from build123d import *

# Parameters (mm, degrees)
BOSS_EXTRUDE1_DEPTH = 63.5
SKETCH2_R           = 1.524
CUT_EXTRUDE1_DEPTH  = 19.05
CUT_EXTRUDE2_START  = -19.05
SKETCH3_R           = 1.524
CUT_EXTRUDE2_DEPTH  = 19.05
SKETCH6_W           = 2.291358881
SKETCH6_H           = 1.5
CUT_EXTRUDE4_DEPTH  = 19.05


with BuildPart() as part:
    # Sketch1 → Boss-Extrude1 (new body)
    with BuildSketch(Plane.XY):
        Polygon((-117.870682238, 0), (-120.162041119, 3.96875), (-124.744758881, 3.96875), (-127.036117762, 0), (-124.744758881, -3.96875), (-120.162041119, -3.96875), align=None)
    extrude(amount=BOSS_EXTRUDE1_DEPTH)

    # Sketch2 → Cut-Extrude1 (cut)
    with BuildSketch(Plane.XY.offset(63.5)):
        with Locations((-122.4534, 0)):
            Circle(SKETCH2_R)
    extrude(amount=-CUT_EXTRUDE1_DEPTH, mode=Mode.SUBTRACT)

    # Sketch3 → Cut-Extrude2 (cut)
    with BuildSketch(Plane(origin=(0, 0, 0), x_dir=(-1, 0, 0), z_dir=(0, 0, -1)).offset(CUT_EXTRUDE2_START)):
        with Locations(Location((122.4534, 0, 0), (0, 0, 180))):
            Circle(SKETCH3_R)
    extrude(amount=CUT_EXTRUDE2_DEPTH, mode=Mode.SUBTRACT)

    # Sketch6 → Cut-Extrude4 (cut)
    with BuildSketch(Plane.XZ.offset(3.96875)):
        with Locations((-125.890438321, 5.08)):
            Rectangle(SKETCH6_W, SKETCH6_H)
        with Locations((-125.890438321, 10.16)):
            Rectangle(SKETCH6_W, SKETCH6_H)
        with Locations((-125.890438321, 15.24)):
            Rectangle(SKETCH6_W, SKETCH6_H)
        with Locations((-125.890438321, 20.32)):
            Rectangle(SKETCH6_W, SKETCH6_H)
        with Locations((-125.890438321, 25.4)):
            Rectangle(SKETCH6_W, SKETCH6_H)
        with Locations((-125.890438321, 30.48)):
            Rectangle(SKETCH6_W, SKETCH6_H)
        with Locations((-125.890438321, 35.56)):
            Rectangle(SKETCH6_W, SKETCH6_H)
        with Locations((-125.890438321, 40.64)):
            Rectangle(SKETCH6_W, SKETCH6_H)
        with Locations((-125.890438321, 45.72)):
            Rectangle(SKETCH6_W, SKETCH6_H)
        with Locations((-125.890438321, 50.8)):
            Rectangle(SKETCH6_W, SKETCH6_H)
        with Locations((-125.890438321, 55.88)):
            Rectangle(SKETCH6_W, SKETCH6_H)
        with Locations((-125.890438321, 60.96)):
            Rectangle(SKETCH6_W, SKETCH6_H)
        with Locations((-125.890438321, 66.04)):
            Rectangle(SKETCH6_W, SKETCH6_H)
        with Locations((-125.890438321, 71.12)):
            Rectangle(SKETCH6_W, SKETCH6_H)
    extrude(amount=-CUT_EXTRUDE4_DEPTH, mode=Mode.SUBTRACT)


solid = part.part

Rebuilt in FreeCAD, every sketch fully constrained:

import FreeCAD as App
import Part
import Sketcher
Q = App.Units.Quantity


def add_polygon(sketch, points):
    """Adds a closed chain of lines whose ends are joined by coincident constraints."""
    first, n = sketch.GeometryCount, len(points)
    for a, b in zip(points, points[1:] + points[:1]):
        sketch.addGeometry(Part.LineSegment(App.Vector(*a, 0), App.Vector(*b, 0)), False)
    for i in range(n):
        sketch.addConstraint(Sketcher.Constraint("Coincident", first + i, 2, first + (i + 1) % n, 1))

doc = App.newDocument("Part")
body = doc.addObject("PartDesign::Body", "Body")

sketch1 = body.newObject("Sketcher::SketchObject", "Sketch")
sketch1.AttachmentSupport = (doc.getObject("XY_Plane"), [""])
sketch1.MapMode = "FlatFace"
add_polygon(sketch1, [(-117.9, 0), (-120.2, 4), (-124.7, 4), (-127, 0), (-124.7, -4), (-120.2, -4)])
sketch1.addConstraint(Sketcher.Constraint("Horizontal", 1))
sketch1.addConstraint(Sketcher.Constraint("Horizontal", 4))
sketch1.addConstraint(Sketcher.Constraint("Symmetric", 1, 2, 3, 2, -1))
sketch1.addConstraint(Sketcher.Constraint("PointOnObject", 2, 2, -1))
sketch1.addConstraint(Sketcher.Constraint("PointOnObject", 5, 2, -1))
sketch1.addConstraint(Sketcher.Constraint("Parallel", 0, 3))
sketch1.addConstraint(Sketcher.Constraint("Parallel", 2, 5))
sketch1.addConstraint(Sketcher.Constraint("Angle", 0, Q("120 deg")))
sketch1.addConstraint(Sketcher.Constraint("DistanceY", -1, 1, 0, 2, Q("0.15625 in")))
sketch1.addConstraint(Sketcher.Constraint("DistanceX", 1, 2, 1, 1, Q("4.582718 mm")))
sketch1.addConstraint(Sketcher.Constraint("DistanceX", 0, 2, -1, 1, Q("120.162041 mm")))
pad1 = body.newObject("PartDesign::Pad", "Pad")
pad1.Profile = sketch1
pad1.Length = Q("2.5 in")

sketch2 = body.newObject("Sketcher::SketchObject", "Sketch001")
sketch2.AttachmentSupport = (doc.getObject("XY_Plane"), [""])
sketch2.MapMode = "FlatFace"
sketch2.AttachmentOffset = App.Placement(App.Vector(0, 0, 2.5 * 25.4), App.Rotation())
sketch2.addGeometry(Part.Circle(App.Vector(-122.5, 0, 0), App.Vector(0, 0, 1), 1.5), False)
sketch2.addConstraint(Sketcher.Constraint("PointOnObject", 0, 3, -1))
sketch2.addConstraint(Sketcher.Constraint("Diameter", 0, Q("0.12 in")))
sketch2.addConstraint(Sketcher.Constraint("DistanceX", 0, 3, -1, 1, Q("4.821 in")))
pocket1 = body.newObject("PartDesign::Pocket", "Pocket")
pocket1.Profile = sketch2
pocket1.Length = Q("0.75 in")

sketch3 = body.newObject("Sketcher::SketchObject", "Sketch002")
sketch3.AttachmentSupport = (doc.getObject("XY_Plane"), [""])
sketch3.MapMode = "FlatFace"
sketch3.AttachmentOffset = App.Placement(App.Vector(0, 0, 0.75 * 25.4), App.Rotation())
sketch3.addGeometry(Part.Circle(App.Vector(-122.5, 0, 0), App.Vector(0, 0, 1), 1.5), False)
sketch3.addConstraint(Sketcher.Constraint("PointOnObject", 0, 3, -1))
sketch3.addConstraint(Sketcher.Constraint("Diameter", 0, Q("0.12 in")))
sketch3.addConstraint(Sketcher.Constraint("DistanceX", 0, 3, -1, 1, Q("4.821 in")))
pocket2 = body.newObject("PartDesign::Pocket", "Pocket001")
pocket2.Profile = sketch3
pocket2.Length = Q("0.75 in")

sketch4 = body.newObject("Sketcher::SketchObject", "Sketch003")
sketch4.AttachmentSupport = (doc.getObject("XZ_Plane"), [""])
sketch4.MapMode = "FlatFace"
sketch4.AttachmentOffset = App.Placement(App.Vector(0, 0, 0.15625 * 25.4), App.Rotation())
add_polygon(sketch4, [(-127, 5.8), (-127, 4.3), (-124.7, 4.3), (-124.7, 5.8)])
add_polygon(sketch4, [(-127, 10.9), (-127, 9.4), (-124.7, 9.4), (-124.7, 10.9)])
add_polygon(sketch4, [(-127, 16), (-127, 14.5), (-124.7, 14.5), (-124.7, 16)])
add_polygon(sketch4, [(-127, 21.1), (-127, 19.6), (-124.7, 19.6), (-124.7, 21.1)])
add_polygon(sketch4, [(-127, 26.1), (-127, 24.6), (-124.7, 24.6), (-124.7, 26.1)])
add_polygon(sketch4, [(-127, 31.2), (-127, 29.7), (-124.7, 29.7), (-124.7, 31.2)])
add_polygon(sketch4, [(-127, 36.3), (-127, 34.8), (-124.7, 34.8), (-124.7, 36.3)])
add_polygon(sketch4, [(-127, 41.4), (-127, 39.9), (-124.7, 39.9), (-124.7, 41.4)])
add_polygon(sketch4, [(-127, 46.5), (-127, 45), (-124.7, 45), (-124.7, 46.5)])
add_polygon(sketch4, [(-127, 51.5), (-127, 50), (-124.7, 50), (-124.7, 51.5)])
add_polygon(sketch4, [(-127, 56.6), (-127, 55.1), (-124.7, 55.1), (-124.7, 56.6)])
add_polygon(sketch4, [(-127, 61.7), (-127, 60.2), (-124.7, 60.2), (-124.7, 61.7)])
add_polygon(sketch4, [(-127, 66.8), (-127, 65.3), (-124.7, 65.3), (-124.7, 66.8)])
add_polygon(sketch4, [(-127, 71.9), (-127, 70.4), (-124.7, 70.4), (-124.7, 71.9)])
sketch4.addConstraint(Sketcher.Constraint("Vertical", 0))
sketch4.addConstraint(Sketcher.Constraint("Horizontal", 1))
sketch4.addConstraint(Sketcher.Constraint("Vertical", 2))
sketch4.addConstraint(Sketcher.Constraint("Horizontal", 3))
sketch4.addConstraint(Sketcher.Constraint("Vertical", 4))
sketch4.addConstraint(Sketcher.Constraint("Horizontal", 5))
sketch4.addConstraint(Sketcher.Constraint("Vertical", 6))
sketch4.addConstraint(Sketcher.Constraint("Horizontal", 7))
sketch4.addConstraint(Sketcher.Constraint("Vertical", 8))
sketch4.addConstraint(Sketcher.Constraint("Horizontal", 9))
sketch4.addConstraint(Sketcher.Constraint("Vertical", 10))
sketch4.addConstraint(Sketcher.Constraint("Horizontal", 11))
sketch4.addConstraint(Sketcher.Constraint("Vertical", 12))
sketch4.addConstraint(Sketcher.Constraint("Horizontal", 13))
sketch4.addConstraint(Sketcher.Constraint("Vertical", 14))
sketch4.addConstraint(Sketcher.Constraint("Horizontal", 15))
sketch4.addConstraint(Sketcher.Constraint("Vertical", 16))
sketch4.addConstraint(Sketcher.Constraint("Horizontal", 17))
sketch4.addConstraint(Sketcher.Constraint("Vertical", 18))
sketch4.addConstraint(Sketcher.Constraint("Horizontal", 19))
sketch4.addConstraint(Sketcher.Constraint("Vertical", 20))
sketch4.addConstraint(Sketcher.Constraint("Horizontal", 21))
sketch4.addConstraint(Sketcher.Constraint("Vertical", 22))
sketch4.addConstraint(Sketcher.Constraint("Horizontal", 23))
sketch4.addConstraint(Sketcher.Constraint("Vertical", 24))
sketch4.addConstraint(Sketcher.Constraint("Horizontal", 25))
sketch4.addConstraint(Sketcher.Constraint("Vertical", 26))
sketch4.addConstraint(Sketcher.Constraint("Horizontal", 27))
sketch4.addConstraint(Sketcher.Constraint("Vertical", 28))
sketch4.addConstraint(Sketcher.Constraint("Horizontal", 29))
sketch4.addConstraint(Sketcher.Constraint("Vertical", 30))
sketch4.addConstraint(Sketcher.Constraint("Horizontal", 31))
sketch4.addConstraint(Sketcher.Constraint("Vertical", 32))
sketch4.addConstraint(Sketcher.Constraint("Horizontal", 33))
sketch4.addConstraint(Sketcher.Constraint("Vertical", 34))
sketch4.addConstraint(Sketcher.Constraint("Horizontal", 35))
sketch4.addConstraint(Sketcher.Constraint("Vertical", 36))
sketch4.addConstraint(Sketcher.Constraint("Horizontal", 37))
sketch4.addConstraint(Sketcher.Constraint("Vertical", 38))
sketch4.addConstraint(Sketcher.Constraint("Horizontal", 39))
sketch4.addConstraint(Sketcher.Constraint("Vertical", 40))
sketch4.addConstraint(Sketcher.Constraint("Horizontal", 41))
sketch4.addConstraint(Sketcher.Constraint("Vertical", 42))
sketch4.addConstraint(Sketcher.Constraint("Horizontal", 43))
sketch4.addConstraint(Sketcher.Constraint("Vertical", 44))
sketch4.addConstraint(Sketcher.Constraint("Horizontal", 45))
sketch4.addConstraint(Sketcher.Constraint("Vertical", 46))
sketch4.addConstraint(Sketcher.Constraint("Horizontal", 47))
sketch4.addConstraint(Sketcher.Constraint("Vertical", 48))
sketch4.addConstraint(Sketcher.Constraint("Horizontal", 49))
sketch4.addConstraint(Sketcher.Constraint("Vertical", 50))
sketch4.addConstraint(Sketcher.Constraint("Horizontal", 51))
sketch4.addConstraint(Sketcher.Constraint("Vertical", 52))
sketch4.addConstraint(Sketcher.Constraint("Horizontal", 53))
sketch4.addConstraint(Sketcher.Constraint("Vertical", 54))
sketch4.addConstraint(Sketcher.Constraint("Horizontal", 55))
sketch4.addConstraint(Sketcher.Constraint("Vertical", 3, 2, 4, 2))
sketch4.addConstraint(Sketcher.Constraint("Vertical", 2, 2, 5, 2))
sketch4.addConstraint(Sketcher.Constraint("Vertical", 7, 2, 8, 2))
sketch4.addConstraint(Sketcher.Constraint("Vertical", 6, 2, 9, 2))
sketch4.addConstraint(Sketcher.Constraint("Vertical", 11, 2, 12, 2))
sketch4.addConstraint(Sketcher.Constraint("Vertical", 10, 2, 13, 2))
sketch4.addConstraint(Sketcher.Constraint("Vertical", 15, 2, 16, 2))
sketch4.addConstraint(Sketcher.Constraint("Vertical", 14, 2, 17, 2))
sketch4.addConstraint(Sketcher.Constraint("Vertical", 19, 2, 20, 2))
sketch4.addConstraint(Sketcher.Constraint("Vertical", 18, 2, 21, 2))
sketch4.addConstraint(Sketcher.Constraint("Vertical", 23, 2, 24, 2))
sketch4.addConstraint(Sketcher.Constraint("Vertical", 22, 2, 25, 2))
sketch4.addConstraint(Sketcher.Constraint("Vertical", 27, 2, 28, 2))
sketch4.addConstraint(Sketcher.Constraint("Vertical", 26, 2, 29, 2))
sketch4.addConstraint(Sketcher.Constraint("Vertical", 31, 2, 32, 2))
sketch4.addConstraint(Sketcher.Constraint("Vertical", 30, 2, 33, 2))
sketch4.addConstraint(Sketcher.Constraint("Vertical", 35, 2, 36, 2))
sketch4.addConstraint(Sketcher.Constraint("Vertical", 34, 2, 37, 2))
sketch4.addConstraint(Sketcher.Constraint("Vertical", 39, 2, 40, 2))
sketch4.addConstraint(Sketcher.Constraint("Vertical", 38, 2, 41, 2))
sketch4.addConstraint(Sketcher.Constraint("Vertical", 43, 2, 44, 2))
sketch4.addConstraint(Sketcher.Constraint("Vertical", 42, 2, 45, 2))
sketch4.addConstraint(Sketcher.Constraint("Vertical", 47, 2, 48, 2))
sketch4.addConstraint(Sketcher.Constraint("Vertical", 46, 2, 49, 2))
sketch4.addConstraint(Sketcher.Constraint("Vertical", 51, 2, 52, 2))
sketch4.addConstraint(Sketcher.Constraint("Vertical", 50, 2, 53, 2))
sketch4.addConstraint(Sketcher.Constraint("Equal", 2, 4))
sketch4.addConstraint(Sketcher.Constraint("Equal", 6, 8))
sketch4.addConstraint(Sketcher.Constraint("Equal", 10, 12))
sketch4.addConstraint(Sketcher.Constraint("Equal", 14, 16))
sketch4.addConstraint(Sketcher.Constraint("Equal", 18, 20))
sketch4.addConstraint(Sketcher.Constraint("Equal", 22, 24))
sketch4.addConstraint(Sketcher.Constraint("Equal", 26, 28))
sketch4.addConstraint(Sketcher.Constraint("Equal", 30, 32))
sketch4.addConstraint(Sketcher.Constraint("Equal", 34, 36))
sketch4.addConstraint(Sketcher.Constraint("Equal", 38, 40))
sketch4.addConstraint(Sketcher.Constraint("Equal", 42, 44))
sketch4.addConstraint(Sketcher.Constraint("Equal", 46, 48))
sketch4.addConstraint(Sketcher.Constraint("Equal", 50, 52))
sketch4.addConstraint(Sketcher.Constraint("DistanceY", 0, 2, 4, 2, Q("0.2 in")))
sketch4.addConstraint(Sketcher.Constraint("DistanceY", 4, 2, 8, 2, Q("0.2 in")))
sketch4.addConstraint(Sketcher.Constraint("DistanceY", 8, 2, 12, 2, Q("0.2 in")))
sketch4.addConstraint(Sketcher.Constraint("DistanceY", 12, 2, 16, 2, Q("0.2 in")))
sketch4.addConstraint(Sketcher.Constraint("DistanceY", 16, 2, 20, 2, Q("0.2 in")))
sketch4.addConstraint(Sketcher.Constraint("DistanceY", 20, 2, 24, 2, Q("0.2 in")))
sketch4.addConstraint(Sketcher.Constraint("DistanceY", 24, 2, 28, 2, Q("0.2 in")))
sketch4.addConstraint(Sketcher.Constraint("DistanceY", 28, 2, 32, 2, Q("0.2 in")))
sketch4.addConstraint(Sketcher.Constraint("DistanceY", 32, 2, 36, 2, Q("0.2 in")))
sketch4.addConstraint(Sketcher.Constraint("DistanceY", 36, 2, 40, 2, Q("0.2 in")))
sketch4.addConstraint(Sketcher.Constraint("DistanceY", 40, 2, 44, 2, Q("0.2 in")))
sketch4.addConstraint(Sketcher.Constraint("DistanceY", 44, 2, 48, 2, Q("0.2 in")))
sketch4.addConstraint(Sketcher.Constraint("DistanceY", 48, 2, 52, 2, Q("0.2 in")))
sketch4.addConstraint(Sketcher.Constraint("DistanceY", 0, 2, 0, 1, Q("1.5 mm")))
sketch4.addConstraint(Sketcher.Constraint("DistanceX", 1, 1, 1, 2, Q("2.291359 mm")))
sketch4.addConstraint(Sketcher.Constraint("DistanceY", -1, 1, 0, 2, Q("4.33 mm")))
sketch4.addConstraint(Sketcher.Constraint("DistanceX", 1, 2, -1, 1, Q("124.744759 mm")))
pocket3 = body.newObject("PartDesign::Pocket", "Pocket002")
pocket3.Profile = sketch4
pocket3.Length = Q("0.75 in")

doc.recompute()
